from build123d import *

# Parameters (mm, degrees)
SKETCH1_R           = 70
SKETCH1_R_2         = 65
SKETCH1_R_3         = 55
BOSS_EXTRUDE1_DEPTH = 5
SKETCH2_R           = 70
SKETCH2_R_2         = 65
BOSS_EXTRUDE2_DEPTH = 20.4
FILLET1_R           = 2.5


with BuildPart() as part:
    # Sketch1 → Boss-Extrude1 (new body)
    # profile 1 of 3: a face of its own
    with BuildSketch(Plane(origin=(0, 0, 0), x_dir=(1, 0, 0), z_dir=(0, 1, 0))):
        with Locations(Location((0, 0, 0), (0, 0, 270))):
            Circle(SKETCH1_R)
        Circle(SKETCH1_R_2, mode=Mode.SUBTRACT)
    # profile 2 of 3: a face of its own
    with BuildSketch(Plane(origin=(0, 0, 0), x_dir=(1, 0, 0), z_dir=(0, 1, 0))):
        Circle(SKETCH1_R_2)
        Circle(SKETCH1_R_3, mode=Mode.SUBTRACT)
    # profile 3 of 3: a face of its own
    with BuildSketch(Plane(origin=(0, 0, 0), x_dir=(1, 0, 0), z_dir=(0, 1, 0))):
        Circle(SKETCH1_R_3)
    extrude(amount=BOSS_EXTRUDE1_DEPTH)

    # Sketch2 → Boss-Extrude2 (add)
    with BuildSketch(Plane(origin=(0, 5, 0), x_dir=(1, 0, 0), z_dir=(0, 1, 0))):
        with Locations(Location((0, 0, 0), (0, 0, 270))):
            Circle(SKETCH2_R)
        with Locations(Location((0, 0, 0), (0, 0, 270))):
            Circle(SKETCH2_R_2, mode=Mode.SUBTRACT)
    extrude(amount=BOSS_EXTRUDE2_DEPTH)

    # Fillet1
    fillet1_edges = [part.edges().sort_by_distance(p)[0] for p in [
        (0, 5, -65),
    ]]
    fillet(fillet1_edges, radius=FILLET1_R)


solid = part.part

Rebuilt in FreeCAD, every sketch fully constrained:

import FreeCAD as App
import Part
import Sketcher

V = App.Vector


def edges_at(feature, points):
    """Names of the edges that pass closest to the given points."""
    edges = feature.Shape.Edges
    near = lambda p: min(range(len(edges)), key=lambda i: edges[i].distToShape(Part.Vertex(*p))[0])
    return sorted({f"Edge{near(p) + 1}" for p in points})

doc = App.newDocument("Part")
body = doc.addObject("PartDesign::Body", "Body")

sketch1 = body.newObject("Sketcher::SketchObject", "Sketch")
sketch1.AttachmentSupport = (doc.getObject("XZ_Plane"), [""])
sketch1.MapMode = "FlatFace"
sketch1.addGeometry(Part.Circle(V(0, 0, 0), V(0, 0, 1), 70), False)
sketch1.addConstraint([
    Sketcher.Constraint("Coincident", 0, 3, -1, 1),
    Sketcher.Constraint("Diameter", 0, 140.0),
])
pad1 = body.newObject("PartDesign::Pad", "Pad")
pad1.Profile = sketch1
pad1.Length = 5
pad1.Reversed = True

sketch2 = body.newObject("Sketcher::SketchObject", "Sketch001")
sketch2.AttachmentSupport = (doc.getObject("XZ_Plane"), [""])
sketch2.MapMode = "FlatFace"
sketch2.AttachmentOffset = App.Placement(V(0, 0, -5), App.Rotation())
sketch2.addGeometry([
    Part.Circle(V(0, 0, 0), V(0, 0, 1), 70),
    Part.Circle(V(0, 0, 0), V(0, 0, 1), 65),
], False)
sketch2.addConstraint([
    Sketcher.Constraint("Coincident", 0, 3, -1, 1),
    Sketcher.Constraint("Coincident", 1, 3, -1, 1),
    Sketcher.Constraint("Diameter", 0, 140.0),
    Sketcher.Constraint("Diameter", 1, 130.0),
])
pad2 = body.newObject("PartDesign::Pad", "Pad001")
pad2.Profile = sketch2
pad2.Length = 20.4
pad2.Reversed = True
doc.recompute()

fillet = body.newObject("PartDesign::Fillet", "Fillet")
fillet.Base = (pad2, edges_at(pad2, [(0, 5, -65)]))
fillet.Radius = 2.5

doc.recompute()
